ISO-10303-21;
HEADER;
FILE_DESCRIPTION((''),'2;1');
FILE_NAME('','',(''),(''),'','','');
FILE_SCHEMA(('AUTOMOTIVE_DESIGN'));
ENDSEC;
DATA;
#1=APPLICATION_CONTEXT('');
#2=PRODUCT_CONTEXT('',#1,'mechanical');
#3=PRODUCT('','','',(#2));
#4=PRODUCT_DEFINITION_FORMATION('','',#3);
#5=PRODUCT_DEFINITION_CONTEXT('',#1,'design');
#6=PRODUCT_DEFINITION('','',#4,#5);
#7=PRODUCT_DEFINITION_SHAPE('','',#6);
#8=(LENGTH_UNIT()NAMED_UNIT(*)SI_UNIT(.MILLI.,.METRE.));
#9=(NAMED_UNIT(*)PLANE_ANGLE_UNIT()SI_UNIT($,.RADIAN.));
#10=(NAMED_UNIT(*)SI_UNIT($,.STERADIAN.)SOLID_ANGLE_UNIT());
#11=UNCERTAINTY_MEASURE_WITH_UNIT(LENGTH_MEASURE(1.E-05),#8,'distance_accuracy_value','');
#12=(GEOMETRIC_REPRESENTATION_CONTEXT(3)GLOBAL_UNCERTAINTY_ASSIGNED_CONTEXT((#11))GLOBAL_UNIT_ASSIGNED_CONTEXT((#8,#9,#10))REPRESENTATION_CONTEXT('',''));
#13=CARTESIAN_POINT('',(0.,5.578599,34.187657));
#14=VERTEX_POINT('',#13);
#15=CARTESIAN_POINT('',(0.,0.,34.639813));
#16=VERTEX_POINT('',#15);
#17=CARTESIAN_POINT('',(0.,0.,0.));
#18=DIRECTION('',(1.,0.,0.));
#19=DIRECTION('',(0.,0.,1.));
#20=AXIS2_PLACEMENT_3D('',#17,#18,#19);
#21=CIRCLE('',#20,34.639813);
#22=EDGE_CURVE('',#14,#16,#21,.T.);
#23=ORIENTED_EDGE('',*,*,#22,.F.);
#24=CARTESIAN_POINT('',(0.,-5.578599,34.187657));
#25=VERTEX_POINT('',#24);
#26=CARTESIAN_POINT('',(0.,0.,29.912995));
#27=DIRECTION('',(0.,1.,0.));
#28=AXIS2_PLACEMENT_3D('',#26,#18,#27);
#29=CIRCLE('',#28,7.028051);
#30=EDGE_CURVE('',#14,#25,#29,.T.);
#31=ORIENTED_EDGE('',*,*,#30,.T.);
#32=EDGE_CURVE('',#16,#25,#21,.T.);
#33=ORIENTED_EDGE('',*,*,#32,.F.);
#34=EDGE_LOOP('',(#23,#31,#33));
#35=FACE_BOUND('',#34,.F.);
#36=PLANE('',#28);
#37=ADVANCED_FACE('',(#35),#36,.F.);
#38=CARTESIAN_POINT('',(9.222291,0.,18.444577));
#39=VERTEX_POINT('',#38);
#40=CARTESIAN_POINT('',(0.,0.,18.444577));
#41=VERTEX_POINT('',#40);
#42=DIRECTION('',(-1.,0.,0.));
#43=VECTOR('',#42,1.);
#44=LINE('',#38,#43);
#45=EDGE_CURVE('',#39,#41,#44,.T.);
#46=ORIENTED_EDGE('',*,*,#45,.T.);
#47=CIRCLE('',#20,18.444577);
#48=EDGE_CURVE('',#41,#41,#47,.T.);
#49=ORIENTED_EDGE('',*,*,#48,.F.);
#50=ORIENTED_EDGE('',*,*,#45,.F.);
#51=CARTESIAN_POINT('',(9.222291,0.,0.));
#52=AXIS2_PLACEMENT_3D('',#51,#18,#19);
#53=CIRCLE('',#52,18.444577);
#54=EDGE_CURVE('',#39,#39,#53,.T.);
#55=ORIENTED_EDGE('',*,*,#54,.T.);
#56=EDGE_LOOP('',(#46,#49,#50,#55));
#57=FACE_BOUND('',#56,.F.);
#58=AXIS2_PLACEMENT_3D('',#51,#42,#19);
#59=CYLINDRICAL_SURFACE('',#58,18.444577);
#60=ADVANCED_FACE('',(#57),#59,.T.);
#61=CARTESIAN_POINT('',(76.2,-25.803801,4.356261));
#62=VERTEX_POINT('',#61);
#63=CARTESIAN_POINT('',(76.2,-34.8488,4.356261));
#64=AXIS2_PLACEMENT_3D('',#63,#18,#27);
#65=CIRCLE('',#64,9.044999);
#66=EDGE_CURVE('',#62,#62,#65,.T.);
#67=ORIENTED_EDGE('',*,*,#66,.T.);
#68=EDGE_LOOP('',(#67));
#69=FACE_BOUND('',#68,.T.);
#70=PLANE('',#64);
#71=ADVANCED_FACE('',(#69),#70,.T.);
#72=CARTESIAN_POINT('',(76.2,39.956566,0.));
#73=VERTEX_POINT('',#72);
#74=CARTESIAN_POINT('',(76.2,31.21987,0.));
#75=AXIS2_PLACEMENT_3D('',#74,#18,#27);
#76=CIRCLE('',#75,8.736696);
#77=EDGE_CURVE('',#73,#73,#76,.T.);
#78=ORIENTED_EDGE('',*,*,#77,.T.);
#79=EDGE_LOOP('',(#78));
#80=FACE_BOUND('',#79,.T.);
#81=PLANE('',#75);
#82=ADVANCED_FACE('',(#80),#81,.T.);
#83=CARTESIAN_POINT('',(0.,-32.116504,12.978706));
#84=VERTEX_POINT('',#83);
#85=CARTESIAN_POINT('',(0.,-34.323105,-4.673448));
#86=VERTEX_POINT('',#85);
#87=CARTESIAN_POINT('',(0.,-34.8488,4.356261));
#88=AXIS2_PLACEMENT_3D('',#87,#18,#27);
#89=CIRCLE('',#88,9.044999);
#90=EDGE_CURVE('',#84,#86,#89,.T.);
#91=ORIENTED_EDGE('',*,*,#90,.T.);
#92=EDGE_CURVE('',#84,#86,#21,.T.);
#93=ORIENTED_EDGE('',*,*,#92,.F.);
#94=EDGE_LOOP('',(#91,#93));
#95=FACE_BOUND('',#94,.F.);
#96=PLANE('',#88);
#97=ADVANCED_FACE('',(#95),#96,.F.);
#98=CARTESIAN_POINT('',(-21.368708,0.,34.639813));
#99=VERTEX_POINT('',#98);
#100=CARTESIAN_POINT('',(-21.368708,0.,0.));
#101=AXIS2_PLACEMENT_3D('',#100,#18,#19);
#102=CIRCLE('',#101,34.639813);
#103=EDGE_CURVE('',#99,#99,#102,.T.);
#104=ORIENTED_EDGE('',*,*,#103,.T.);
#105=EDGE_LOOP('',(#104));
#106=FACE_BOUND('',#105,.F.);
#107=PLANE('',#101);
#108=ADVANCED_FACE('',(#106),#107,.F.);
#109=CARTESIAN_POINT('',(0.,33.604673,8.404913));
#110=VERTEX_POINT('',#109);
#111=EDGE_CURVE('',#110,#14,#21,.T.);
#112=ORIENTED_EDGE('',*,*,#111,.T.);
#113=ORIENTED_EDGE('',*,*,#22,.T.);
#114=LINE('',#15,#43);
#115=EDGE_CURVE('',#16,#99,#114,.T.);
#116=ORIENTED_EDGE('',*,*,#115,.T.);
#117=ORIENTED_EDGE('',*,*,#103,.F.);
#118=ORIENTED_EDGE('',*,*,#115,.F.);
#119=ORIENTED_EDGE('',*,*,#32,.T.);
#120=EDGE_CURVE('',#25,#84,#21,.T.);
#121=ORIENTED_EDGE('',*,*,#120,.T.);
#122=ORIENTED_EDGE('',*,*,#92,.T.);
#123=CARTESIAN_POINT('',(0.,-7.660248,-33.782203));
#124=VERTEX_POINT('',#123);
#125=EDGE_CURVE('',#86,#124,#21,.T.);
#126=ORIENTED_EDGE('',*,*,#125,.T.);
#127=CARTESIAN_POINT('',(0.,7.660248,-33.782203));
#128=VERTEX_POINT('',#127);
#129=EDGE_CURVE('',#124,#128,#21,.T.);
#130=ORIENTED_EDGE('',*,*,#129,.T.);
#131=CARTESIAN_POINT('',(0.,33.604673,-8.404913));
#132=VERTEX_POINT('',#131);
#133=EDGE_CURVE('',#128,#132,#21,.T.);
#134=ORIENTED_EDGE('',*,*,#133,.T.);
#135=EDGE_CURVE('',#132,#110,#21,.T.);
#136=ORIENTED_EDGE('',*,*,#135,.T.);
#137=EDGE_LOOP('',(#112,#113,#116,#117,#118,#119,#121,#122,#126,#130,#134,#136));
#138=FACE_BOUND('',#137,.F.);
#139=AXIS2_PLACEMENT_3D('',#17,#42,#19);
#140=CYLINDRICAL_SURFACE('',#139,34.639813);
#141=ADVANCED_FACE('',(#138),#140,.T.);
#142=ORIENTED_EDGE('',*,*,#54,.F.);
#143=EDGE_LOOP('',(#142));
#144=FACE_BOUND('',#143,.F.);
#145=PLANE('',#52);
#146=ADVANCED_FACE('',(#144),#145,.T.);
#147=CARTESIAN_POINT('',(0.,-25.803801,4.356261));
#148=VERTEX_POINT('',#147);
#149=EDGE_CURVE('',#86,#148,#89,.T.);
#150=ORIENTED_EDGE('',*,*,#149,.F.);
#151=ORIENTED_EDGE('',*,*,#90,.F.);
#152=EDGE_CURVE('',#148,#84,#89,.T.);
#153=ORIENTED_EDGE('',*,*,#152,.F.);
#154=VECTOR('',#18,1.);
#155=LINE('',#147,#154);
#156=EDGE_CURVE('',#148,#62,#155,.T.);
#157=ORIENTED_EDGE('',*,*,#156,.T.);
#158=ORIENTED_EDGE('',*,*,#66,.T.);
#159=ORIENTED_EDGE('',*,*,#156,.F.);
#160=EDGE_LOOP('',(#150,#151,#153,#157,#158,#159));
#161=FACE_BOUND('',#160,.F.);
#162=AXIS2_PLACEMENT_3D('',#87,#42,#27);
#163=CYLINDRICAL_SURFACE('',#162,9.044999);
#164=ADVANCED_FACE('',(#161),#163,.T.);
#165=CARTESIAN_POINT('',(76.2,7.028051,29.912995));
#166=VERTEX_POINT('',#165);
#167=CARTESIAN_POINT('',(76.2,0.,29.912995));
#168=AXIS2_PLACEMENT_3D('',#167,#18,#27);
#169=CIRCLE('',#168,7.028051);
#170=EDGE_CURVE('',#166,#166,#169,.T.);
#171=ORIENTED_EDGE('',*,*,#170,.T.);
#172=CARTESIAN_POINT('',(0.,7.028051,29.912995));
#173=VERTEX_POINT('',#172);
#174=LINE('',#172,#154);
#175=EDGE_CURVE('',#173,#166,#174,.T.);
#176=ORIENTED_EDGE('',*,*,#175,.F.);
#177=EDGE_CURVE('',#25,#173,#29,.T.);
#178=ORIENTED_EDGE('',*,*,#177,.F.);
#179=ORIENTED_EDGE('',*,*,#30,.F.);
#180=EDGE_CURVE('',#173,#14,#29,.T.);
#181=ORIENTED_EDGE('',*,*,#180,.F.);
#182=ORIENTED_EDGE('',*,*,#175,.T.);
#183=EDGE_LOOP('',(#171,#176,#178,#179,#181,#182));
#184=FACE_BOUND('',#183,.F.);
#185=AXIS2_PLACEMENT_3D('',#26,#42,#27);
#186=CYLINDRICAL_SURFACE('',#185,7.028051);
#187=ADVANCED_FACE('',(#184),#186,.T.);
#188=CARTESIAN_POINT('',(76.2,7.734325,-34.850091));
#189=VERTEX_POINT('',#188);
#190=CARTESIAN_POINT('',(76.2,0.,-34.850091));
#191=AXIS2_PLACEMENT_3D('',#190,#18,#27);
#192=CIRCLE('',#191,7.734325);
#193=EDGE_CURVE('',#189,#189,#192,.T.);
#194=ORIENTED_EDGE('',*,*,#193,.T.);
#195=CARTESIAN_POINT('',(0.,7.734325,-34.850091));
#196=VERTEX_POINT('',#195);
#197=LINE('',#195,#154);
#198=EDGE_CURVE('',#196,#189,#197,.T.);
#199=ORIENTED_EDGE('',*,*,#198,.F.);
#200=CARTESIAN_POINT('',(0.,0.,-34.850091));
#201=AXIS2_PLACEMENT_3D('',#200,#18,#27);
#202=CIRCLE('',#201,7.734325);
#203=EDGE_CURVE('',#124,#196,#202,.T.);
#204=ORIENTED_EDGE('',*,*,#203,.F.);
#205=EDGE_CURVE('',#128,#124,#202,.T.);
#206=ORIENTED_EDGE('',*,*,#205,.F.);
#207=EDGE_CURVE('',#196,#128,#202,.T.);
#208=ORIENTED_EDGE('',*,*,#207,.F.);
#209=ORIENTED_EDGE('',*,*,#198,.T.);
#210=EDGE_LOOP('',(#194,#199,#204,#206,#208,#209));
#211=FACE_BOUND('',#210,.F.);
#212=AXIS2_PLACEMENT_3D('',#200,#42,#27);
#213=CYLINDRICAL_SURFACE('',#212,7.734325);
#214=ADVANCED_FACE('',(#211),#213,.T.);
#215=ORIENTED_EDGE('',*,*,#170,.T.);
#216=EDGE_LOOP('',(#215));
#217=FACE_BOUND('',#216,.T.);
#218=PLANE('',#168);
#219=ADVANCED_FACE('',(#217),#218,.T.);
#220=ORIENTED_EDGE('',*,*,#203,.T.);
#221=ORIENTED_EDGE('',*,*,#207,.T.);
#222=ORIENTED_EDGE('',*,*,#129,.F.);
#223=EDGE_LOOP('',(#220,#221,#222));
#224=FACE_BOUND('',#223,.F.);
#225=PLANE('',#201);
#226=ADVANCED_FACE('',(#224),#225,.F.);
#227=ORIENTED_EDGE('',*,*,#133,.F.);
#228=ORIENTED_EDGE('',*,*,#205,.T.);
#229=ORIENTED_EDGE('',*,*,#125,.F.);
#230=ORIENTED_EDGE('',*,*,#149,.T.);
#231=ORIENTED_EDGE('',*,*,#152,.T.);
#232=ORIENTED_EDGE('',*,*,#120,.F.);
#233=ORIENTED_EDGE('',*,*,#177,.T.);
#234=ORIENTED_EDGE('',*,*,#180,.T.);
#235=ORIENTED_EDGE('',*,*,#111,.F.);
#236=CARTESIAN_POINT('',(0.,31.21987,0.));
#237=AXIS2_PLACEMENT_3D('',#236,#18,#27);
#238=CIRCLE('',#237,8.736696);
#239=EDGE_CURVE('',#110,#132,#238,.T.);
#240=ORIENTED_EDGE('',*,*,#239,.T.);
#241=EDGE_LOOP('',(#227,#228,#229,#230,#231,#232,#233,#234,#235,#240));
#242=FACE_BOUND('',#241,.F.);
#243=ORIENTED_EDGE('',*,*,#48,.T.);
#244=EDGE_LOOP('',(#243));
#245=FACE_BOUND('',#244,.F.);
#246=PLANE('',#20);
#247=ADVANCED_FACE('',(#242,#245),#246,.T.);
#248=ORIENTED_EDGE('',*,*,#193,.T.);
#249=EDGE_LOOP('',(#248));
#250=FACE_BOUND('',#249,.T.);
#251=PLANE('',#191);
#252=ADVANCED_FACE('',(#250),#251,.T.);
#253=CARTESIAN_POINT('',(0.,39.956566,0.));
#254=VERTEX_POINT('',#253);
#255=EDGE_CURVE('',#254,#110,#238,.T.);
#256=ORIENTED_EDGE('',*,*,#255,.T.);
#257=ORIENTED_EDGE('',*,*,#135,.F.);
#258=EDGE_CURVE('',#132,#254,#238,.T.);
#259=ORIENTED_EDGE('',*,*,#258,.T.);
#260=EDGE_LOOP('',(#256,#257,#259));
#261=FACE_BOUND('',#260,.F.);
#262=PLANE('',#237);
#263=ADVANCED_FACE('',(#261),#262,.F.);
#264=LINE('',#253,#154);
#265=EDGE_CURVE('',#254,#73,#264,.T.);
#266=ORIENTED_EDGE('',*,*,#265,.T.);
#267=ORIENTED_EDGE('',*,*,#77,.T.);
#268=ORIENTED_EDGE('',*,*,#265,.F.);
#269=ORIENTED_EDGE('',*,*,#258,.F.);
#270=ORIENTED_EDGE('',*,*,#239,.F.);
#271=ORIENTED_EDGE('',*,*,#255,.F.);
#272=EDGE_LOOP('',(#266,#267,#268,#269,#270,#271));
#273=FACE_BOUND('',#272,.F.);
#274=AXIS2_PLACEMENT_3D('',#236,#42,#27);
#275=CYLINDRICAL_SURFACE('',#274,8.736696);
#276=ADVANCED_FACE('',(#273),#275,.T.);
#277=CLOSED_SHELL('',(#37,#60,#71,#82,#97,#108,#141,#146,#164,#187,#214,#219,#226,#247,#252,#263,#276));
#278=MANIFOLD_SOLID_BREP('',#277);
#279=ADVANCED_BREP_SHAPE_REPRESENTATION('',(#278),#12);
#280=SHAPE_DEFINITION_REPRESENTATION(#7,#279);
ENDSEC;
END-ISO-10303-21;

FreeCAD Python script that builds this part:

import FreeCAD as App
import Part
import Sketcher

V = App.Vector
Q = App.Units.Quantity

doc = App.newDocument("Part")
body = doc.addObject("PartDesign::Body", "Body")

sketch1 = body.newObject("Sketcher::SketchObject", "Sketch")
sketch1.AttachmentSupport = (doc.getObject("XZ_Plane"), [""])
sketch1.MapMode = "FlatFace"
sketch1.addGeometry(Part.LineSegment(V(0, 35, 0), V(-21, 35, 0)), False)
sketch1.addGeometry(Part.LineSegment(V(-21, 35, 0), V(-21, 0, 0)), False)
sketch1.addGeometry(Part.LineSegment(V(-21, 0, 0), V(9, 0, 0)), False)
sketch1.addGeometry(Part.LineSegment(V(9, 0, 0), V(9, 18, 0)), False)
sketch1.addGeometry(Part.LineSegment(V(9, 18, 0), V(0, 18, 0)), False)
sketch1.addGeometry(Part.LineSegment(V(0, 18, 0), V(0, 35, 0)), False)
sketch1.addConstraint(Sketcher.Constraint("Coincident", 0, 2, 1, 1))
sketch1.addConstraint(Sketcher.Constraint("Coincident", 1, 2, 2, 1))
sketch1.addConstraint(Sketcher.Constraint("Coincident", 2, 2, 3, 1))
sketch1.addConstraint(Sketcher.Constraint("Coincident", 3, 2, 4, 1))
sketch1.addConstraint(Sketcher.Constraint("Coincident", 4, 2, 5, 1))
sketch1.addConstraint(Sketcher.Constraint("Coincident", 5, 2, 0, 1))
sketch1.addConstraint(Sketcher.Constraint("Horizontal", 0))
sketch1.addConstraint(Sketcher.Constraint("Vertical", 1))
sketch1.addConstraint(Sketcher.Constraint("Horizontal", 2))
sketch1.addConstraint(Sketcher.Constraint("Vertical", 3))
sketch1.addConstraint(Sketcher.Constraint("Horizontal", 4))
sketch1.addConstraint(Sketcher.Constraint("Vertical", 5))
sketch1.addConstraint(Sketcher.Constraint("PointOnObject", 1, 2, -1))
sketch1.addConstraint(Sketcher.Constraint("PointOnObject", 4, 2, -2))
sketch1.addConstraint(Sketcher.Constraint("DistanceX", 2, 1, 2, 2, Q("30.590999 mm")))
sketch1.addConstraint(Sketcher.Constraint("DistanceX", 0, 2, 0, 1, Q("21.368708 mm")))
sketch1.addConstraint(Sketcher.Constraint("DistanceY", 1, 2, 1, 1, Q("34.639813 mm")))
sketch1.addConstraint(Sketcher.Constraint("DistanceY", 3, 1, 3, 2, Q("18.444577 mm")))
revolution = body.newObject("PartDesign::Revolution", "Revolution")
revolution.Profile = sketch1
revolution.ReferenceAxis = (sketch1, ["H_Axis"])
revolution.Angle = 360

sketch2 = body.newObject("Sketcher::SketchObject", "Sketch001")
sketch2.AttachmentSupport = (doc.getObject("YZ_Plane"), [""])
sketch2.MapMode = "FlatFace"
sketch2.addGeometry(Part.Circle(V(0, -35, 0), V(0, 0, 1), 8), False)
sketch2.addGeometry(Part.Circle(V(-35, 4, 0), V(0, 0, 1), 9), False)
sketch2.addGeometry(Part.Circle(V(0, 30, 0), V(0, 0, 1), 7), False)
sketch2.addGeometry(Part.Circle(V(31, 0, 0), V(0, 0, 1), 9), False)
sketch2.addConstraint(Sketcher.Constraint("PointOnObject", 0, 3, -2))
sketch2.addConstraint(Sketcher.Constraint("PointOnObject", 2, 3, -2))
sketch2.addConstraint(Sketcher.Constraint("PointOnObject", 3, 3, -1))
sketch2.addConstraint(Sketcher.Constraint("Diameter", 1, Q("18.089998 mm")))
sketch2.addConstraint(Sketcher.Constraint("Diameter", 2, Q("14.056102 mm")))
sketch2.addConstraint(Sketcher.Constraint("Diameter", 0, Q("15.46865 mm")))
sketch2.addConstraint(Sketcher.Constraint("DistanceX", 1, 3, -1, 1, Q("1.372 in")))
sketch2.addConstraint(Sketcher.Constraint("Diameter", 3, Q("17.473392 mm")))
sketch2.addConstraint(Sketcher.Constraint("DistanceY", 0, 3, -1, 1, Q("34.850091 mm")))
sketch2.addConstraint(Sketcher.Constraint("DistanceY", -1, 1, 1, 3, Q("4.356261 mm")))
sketch2.addConstraint(Sketcher.Constraint("DistanceX", -1, 1, 3, 3, Q("31.21987 mm")))
sketch2.addConstraint(Sketcher.Constraint("DistanceY", -1, 1, 2, 3, Q("29.912995 mm")))
pad1 = body.newObject("PartDesign::Pad", "Pad")
pad1.Profile = sketch2
pad1.Length = Q("3 in")

doc.recompute()
